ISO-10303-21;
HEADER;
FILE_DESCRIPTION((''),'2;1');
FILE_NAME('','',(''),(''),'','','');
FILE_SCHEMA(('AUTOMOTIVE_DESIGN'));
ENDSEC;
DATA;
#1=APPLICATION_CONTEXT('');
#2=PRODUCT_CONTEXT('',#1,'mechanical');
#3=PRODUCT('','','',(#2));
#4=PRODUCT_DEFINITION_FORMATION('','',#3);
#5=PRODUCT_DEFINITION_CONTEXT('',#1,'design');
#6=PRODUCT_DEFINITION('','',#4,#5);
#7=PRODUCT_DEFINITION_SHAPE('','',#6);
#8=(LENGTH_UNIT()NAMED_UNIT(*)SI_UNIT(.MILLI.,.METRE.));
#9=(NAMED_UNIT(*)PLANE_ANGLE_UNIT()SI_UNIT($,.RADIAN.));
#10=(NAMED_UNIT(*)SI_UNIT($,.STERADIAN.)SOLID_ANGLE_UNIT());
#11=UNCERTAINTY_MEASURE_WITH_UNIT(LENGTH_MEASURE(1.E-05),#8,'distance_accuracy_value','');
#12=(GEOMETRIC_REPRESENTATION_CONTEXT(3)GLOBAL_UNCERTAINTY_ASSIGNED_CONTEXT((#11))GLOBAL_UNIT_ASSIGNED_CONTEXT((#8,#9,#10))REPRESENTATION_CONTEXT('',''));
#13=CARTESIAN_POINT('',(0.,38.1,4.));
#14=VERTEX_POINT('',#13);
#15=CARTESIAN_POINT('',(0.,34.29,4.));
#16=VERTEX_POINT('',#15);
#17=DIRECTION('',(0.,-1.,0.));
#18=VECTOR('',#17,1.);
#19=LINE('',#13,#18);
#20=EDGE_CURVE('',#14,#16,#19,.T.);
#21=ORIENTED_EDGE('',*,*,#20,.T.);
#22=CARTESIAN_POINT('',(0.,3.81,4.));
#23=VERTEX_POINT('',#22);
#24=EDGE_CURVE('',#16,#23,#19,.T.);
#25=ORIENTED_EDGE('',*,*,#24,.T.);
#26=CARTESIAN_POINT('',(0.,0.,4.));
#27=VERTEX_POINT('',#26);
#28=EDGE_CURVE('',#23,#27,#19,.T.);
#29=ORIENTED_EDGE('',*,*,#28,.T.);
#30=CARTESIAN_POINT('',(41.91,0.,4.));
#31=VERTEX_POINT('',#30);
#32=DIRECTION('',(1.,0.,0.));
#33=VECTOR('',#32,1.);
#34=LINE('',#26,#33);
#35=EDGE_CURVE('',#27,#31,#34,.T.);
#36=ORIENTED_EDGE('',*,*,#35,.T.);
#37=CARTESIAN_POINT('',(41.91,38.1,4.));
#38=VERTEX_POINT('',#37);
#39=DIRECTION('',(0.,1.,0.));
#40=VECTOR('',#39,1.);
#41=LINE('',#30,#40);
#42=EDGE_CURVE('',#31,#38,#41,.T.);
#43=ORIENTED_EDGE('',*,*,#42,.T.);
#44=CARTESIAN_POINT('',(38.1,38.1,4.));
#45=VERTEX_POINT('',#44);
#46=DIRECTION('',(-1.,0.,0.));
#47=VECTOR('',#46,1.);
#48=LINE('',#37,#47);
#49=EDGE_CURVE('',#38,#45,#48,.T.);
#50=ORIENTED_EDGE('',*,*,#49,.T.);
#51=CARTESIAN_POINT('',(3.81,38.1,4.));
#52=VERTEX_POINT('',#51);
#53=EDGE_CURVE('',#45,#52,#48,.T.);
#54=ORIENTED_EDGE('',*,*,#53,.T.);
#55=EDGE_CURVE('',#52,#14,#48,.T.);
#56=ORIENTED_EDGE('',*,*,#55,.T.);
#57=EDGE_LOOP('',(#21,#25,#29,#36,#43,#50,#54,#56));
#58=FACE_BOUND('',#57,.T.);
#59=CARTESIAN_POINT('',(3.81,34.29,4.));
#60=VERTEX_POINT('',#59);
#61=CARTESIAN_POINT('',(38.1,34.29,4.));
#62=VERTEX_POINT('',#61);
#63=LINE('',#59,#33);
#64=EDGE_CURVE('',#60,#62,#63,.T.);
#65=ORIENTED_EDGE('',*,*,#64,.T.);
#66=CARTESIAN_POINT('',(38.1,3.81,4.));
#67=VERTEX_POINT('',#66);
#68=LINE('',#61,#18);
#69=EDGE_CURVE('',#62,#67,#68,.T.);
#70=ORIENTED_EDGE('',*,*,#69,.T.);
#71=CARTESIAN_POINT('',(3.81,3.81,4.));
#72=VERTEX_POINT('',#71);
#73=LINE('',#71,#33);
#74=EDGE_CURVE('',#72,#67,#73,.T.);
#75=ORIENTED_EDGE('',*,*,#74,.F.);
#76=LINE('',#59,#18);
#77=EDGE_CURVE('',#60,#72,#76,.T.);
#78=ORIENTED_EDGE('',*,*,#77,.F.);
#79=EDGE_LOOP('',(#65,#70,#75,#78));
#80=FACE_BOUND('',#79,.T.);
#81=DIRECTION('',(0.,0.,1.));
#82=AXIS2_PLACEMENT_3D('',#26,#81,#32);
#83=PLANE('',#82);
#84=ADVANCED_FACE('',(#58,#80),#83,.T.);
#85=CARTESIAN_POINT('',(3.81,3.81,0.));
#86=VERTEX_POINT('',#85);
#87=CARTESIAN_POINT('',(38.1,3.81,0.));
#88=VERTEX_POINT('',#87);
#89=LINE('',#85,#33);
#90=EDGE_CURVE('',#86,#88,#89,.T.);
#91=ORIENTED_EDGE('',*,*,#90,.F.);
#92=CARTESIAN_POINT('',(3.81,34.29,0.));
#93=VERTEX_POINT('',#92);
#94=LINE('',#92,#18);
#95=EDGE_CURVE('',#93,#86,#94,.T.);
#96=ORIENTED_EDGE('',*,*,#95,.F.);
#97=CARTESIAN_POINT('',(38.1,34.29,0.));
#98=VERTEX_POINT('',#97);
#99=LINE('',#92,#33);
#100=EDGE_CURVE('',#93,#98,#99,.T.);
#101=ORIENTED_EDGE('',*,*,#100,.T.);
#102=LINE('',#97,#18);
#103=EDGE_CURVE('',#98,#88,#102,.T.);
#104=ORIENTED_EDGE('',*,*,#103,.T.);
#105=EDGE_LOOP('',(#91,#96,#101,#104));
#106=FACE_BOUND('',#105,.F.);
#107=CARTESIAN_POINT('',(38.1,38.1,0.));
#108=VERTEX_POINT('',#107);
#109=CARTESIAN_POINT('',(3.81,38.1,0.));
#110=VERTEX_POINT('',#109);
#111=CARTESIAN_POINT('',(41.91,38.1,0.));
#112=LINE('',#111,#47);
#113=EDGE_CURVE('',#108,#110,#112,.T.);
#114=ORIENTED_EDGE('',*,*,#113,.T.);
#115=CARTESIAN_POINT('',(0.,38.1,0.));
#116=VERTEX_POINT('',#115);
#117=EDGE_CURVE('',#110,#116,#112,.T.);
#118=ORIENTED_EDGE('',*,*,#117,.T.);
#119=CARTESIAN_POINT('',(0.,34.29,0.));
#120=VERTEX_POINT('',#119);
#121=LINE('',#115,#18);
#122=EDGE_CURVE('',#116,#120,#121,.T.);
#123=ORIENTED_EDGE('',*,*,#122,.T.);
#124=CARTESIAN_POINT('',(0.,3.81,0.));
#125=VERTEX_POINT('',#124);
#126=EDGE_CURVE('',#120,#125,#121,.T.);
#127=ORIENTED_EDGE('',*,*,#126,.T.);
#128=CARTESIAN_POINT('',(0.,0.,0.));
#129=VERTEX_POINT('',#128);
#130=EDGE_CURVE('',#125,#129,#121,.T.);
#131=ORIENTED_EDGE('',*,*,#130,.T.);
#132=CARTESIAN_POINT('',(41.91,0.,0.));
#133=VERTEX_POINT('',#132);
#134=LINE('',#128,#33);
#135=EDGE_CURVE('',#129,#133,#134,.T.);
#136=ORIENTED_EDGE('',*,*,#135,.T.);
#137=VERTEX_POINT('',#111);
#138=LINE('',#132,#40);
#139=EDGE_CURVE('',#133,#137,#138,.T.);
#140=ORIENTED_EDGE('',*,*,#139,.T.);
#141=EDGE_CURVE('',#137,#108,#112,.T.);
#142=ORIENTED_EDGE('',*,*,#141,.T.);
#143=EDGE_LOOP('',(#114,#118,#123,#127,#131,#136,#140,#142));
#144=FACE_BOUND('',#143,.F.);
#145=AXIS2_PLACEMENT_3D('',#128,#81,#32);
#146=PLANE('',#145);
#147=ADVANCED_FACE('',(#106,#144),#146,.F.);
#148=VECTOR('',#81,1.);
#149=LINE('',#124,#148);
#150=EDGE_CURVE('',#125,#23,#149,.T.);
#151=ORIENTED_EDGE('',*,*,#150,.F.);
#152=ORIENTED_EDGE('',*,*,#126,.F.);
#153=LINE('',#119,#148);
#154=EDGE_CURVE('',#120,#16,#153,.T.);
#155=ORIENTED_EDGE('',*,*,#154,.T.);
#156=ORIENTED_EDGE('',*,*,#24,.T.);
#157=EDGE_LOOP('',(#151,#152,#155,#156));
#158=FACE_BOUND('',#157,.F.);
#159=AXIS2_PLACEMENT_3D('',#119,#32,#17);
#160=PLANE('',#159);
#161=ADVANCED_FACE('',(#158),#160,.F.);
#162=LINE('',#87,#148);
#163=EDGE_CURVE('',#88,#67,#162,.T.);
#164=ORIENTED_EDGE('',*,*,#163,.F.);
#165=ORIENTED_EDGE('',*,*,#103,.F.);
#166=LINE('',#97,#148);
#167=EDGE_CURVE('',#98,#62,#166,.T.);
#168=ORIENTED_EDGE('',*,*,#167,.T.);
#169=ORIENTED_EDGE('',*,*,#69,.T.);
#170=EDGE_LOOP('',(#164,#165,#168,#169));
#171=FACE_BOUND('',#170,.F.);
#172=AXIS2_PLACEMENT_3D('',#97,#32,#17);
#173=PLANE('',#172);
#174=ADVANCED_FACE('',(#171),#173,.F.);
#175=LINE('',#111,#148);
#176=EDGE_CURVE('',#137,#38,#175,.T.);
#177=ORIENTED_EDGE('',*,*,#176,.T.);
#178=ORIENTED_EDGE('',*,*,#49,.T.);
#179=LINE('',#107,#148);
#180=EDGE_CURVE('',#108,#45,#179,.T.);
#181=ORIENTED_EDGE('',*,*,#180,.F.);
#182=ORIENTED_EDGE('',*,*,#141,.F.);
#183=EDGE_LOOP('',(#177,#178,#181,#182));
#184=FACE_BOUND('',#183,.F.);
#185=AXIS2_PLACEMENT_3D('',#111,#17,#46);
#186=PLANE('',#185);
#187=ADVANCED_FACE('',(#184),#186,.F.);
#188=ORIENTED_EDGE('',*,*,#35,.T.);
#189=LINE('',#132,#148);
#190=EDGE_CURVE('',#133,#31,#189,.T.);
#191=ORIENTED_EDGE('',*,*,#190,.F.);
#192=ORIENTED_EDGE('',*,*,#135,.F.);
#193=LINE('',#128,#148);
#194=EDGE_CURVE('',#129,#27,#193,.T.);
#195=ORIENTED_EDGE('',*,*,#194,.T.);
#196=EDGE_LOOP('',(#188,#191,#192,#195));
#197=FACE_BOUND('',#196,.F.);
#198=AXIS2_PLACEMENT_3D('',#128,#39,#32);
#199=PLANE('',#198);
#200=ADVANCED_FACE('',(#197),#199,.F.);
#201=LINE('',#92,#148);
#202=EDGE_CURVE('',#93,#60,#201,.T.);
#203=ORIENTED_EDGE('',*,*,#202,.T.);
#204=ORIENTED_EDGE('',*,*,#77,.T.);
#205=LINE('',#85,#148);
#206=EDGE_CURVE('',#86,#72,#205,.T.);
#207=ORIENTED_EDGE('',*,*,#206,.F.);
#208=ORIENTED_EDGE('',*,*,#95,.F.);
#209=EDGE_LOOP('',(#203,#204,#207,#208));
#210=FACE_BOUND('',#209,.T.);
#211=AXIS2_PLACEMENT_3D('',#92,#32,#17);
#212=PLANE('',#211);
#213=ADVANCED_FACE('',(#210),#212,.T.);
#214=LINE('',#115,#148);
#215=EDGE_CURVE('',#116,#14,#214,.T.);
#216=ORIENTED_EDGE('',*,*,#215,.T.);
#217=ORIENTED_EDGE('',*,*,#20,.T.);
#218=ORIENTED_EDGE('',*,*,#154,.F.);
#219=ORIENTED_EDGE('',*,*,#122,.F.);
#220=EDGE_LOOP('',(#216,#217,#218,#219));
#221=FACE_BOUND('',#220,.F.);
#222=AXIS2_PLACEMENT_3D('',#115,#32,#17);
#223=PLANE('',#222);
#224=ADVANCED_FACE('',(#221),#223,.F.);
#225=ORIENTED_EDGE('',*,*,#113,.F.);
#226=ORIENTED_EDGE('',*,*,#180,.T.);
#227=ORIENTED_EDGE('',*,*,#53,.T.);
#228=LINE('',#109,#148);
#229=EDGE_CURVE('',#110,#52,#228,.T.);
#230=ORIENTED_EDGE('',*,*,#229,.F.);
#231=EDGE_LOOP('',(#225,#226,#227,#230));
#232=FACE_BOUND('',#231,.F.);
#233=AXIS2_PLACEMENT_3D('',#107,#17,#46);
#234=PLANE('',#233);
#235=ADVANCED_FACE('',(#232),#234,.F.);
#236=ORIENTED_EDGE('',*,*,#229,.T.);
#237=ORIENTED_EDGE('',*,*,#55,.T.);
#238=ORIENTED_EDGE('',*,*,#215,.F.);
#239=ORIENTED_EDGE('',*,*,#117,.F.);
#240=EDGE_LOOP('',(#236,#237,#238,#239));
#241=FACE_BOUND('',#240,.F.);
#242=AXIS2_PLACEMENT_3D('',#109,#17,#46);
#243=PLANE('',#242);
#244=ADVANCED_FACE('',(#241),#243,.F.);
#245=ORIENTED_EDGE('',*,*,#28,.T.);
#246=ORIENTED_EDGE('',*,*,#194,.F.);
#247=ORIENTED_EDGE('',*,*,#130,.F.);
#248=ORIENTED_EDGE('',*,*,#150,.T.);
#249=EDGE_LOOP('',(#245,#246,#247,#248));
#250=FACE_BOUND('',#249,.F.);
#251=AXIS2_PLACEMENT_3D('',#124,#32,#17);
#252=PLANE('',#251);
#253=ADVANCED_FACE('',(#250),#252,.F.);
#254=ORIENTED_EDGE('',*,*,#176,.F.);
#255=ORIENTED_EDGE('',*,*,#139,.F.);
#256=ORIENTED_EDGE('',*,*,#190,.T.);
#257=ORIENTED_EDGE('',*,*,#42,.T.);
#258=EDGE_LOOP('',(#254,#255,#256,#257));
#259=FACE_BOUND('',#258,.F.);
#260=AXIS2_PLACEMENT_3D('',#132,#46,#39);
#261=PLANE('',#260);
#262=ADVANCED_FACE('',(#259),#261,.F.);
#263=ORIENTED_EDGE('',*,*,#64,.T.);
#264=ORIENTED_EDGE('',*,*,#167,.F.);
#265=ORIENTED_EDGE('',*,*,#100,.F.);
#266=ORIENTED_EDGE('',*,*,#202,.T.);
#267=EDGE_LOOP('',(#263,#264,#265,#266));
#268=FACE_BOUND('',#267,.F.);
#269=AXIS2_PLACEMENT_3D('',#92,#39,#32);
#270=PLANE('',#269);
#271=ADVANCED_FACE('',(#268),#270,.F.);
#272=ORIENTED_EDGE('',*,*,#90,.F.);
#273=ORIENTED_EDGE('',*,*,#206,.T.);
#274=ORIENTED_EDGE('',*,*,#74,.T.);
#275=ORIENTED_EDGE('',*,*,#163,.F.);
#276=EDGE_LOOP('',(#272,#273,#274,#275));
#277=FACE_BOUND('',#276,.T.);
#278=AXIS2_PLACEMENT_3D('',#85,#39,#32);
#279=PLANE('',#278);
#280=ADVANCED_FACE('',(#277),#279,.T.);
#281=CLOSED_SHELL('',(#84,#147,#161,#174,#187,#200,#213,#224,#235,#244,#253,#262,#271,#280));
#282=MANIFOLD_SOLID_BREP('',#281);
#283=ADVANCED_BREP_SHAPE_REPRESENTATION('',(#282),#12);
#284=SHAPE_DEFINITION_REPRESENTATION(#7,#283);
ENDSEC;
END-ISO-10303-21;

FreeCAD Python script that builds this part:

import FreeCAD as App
import Part
import Sketcher
from FreeCAD import Vector
Q = App.Units.Quantity


def add_polygon(sketch, points):
    """Adds a closed chain of lines whose ends are joined by coincident constraints."""
    first, n = sketch.GeometryCount, len(points)
    for a, b in zip(points, points[1:] + points[:1]):
        sketch.addGeometry(Part.LineSegment(App.Vector(*a, 0), App.Vector(*b, 0)), False)
    for i in range(n):
        sketch.addConstraint(Sketcher.Constraint("Coincident", first + i, 2, first + (i + 1) % n, 1))

doc = App.newDocument("Part")
body = doc.addObject("PartDesign::Body", "Body")

# Sketch on XY plane
sketch1 = body.newObject("Sketcher::SketchObject", "Sketch")
sketch1.AttachmentSupport = (doc.getObject("XY_Plane"), [""])
sketch1.MapMode = "FlatFace"
add_polygon(sketch1, [(0, 38), (0, 0), (42, 0), (42, 38)])  # lines 0-3
add_polygon(sketch1, [(4, 4), (4, 34), (38, 34), (38, 4)])  # lines 4-7
sketch1.addConstraint([
    Sketcher.Constraint("Vertical", 0),
    Sketcher.Constraint("Horizontal", 1),
    Sketcher.Constraint("Vertical", 2),
    Sketcher.Constraint("Horizontal", 3),
    Sketcher.Constraint("Vertical", 4),
    Sketcher.Constraint("Horizontal", 5),
    Sketcher.Constraint("Vertical", 6),
    Sketcher.Constraint("Horizontal", 7),
    Sketcher.Constraint("Coincident", 0, 2, -1, 1),
    Sketcher.Constraint("DistanceY", 0, 2, 0, 1, Q("1.5 in")),
    Sketcher.Constraint("DistanceX", 1, 1, 1, 2, Q("1.65 in")),
    Sketcher.Constraint("DistanceX", -1, 1, 5, 2, Q("1.5 in")),
    Sketcher.Constraint("DistanceX", 4, 2, 2, 2, Q("1.5 in")),
    Sketcher.Constraint("DistanceY", -1, 1, 6, 2, Q("0.15 in")),
    Sketcher.Constraint("DistanceY", 4, 2, 3, 2, Q("0.15 in")),
])
pad1 = body.newObject("PartDesign::Pad", "Pad")
pad1.Profile = sketch1
pad1.Length = 4

doc.recompute()
